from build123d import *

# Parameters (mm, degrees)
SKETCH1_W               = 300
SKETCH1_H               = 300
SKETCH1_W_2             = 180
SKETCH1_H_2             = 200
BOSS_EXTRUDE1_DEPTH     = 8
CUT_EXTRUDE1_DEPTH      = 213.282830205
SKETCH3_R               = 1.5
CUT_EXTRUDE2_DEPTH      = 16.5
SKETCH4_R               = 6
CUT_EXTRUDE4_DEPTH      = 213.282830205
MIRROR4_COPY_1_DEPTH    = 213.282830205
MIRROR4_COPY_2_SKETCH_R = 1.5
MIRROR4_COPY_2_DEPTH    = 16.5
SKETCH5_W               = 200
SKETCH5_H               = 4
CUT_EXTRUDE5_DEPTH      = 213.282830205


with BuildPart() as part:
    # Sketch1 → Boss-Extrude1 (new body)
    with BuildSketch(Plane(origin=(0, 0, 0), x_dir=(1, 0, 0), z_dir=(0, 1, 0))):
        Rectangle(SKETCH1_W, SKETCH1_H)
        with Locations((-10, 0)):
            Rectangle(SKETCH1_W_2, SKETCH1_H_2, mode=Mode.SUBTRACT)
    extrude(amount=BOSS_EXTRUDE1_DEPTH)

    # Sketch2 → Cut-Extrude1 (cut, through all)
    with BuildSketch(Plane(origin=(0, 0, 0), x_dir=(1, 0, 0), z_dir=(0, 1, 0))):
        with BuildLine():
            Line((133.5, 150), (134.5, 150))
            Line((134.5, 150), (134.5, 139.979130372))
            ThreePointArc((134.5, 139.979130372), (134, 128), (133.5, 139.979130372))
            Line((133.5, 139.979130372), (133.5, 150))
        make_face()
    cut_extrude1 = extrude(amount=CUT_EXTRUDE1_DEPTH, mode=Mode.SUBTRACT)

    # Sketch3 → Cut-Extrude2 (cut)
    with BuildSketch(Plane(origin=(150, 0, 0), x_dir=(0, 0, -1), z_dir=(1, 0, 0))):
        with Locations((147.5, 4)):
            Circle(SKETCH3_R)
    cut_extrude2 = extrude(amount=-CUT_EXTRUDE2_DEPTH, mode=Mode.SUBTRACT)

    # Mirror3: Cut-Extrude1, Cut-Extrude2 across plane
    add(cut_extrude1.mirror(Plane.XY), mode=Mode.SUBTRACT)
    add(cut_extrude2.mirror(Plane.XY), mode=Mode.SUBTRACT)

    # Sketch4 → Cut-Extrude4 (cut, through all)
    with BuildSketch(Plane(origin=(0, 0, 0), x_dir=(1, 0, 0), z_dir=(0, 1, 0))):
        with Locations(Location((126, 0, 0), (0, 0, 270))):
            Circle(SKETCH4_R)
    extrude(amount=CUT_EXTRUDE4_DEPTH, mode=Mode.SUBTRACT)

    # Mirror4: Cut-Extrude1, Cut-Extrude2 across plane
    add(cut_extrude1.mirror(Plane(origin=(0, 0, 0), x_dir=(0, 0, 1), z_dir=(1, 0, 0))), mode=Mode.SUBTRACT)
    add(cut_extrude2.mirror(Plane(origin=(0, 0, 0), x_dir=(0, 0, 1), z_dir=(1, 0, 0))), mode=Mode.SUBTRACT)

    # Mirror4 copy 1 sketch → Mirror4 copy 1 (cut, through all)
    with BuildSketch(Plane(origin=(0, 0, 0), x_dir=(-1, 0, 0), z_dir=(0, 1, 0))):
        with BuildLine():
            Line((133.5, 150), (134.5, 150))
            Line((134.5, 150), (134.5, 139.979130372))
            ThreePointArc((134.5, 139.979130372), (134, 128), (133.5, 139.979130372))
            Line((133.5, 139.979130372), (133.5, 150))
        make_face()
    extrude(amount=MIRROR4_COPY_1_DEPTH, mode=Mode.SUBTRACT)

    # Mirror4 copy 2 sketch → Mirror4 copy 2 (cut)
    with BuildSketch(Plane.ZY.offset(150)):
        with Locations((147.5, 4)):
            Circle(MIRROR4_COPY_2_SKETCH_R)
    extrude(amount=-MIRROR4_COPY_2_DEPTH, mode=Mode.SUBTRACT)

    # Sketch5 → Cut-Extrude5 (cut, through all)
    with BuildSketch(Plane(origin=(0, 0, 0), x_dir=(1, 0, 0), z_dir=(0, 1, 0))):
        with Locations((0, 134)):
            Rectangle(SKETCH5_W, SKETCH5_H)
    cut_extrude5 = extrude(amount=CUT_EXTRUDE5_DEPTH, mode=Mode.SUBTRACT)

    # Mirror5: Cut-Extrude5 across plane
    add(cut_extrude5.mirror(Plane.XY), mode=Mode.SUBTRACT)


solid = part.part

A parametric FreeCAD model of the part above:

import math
import FreeCAD as App
import Part
import Sketcher
from FreeCAD import Vector


def add_polygon(sketch, points):
    """Adds a closed chain of lines whose ends are joined by coincident constraints."""
    first, n = sketch.GeometryCount, len(points)
    for a, b in zip(points, points[1:] + points[:1]):
        sketch.addGeometry(Part.LineSegment(App.Vector(*a, 0), App.Vector(*b, 0)), False)
    for i in range(n):
        sketch.addConstraint(Sketcher.Constraint("Coincident", first + i, 2, first + (i + 1) % n, 1))

doc = App.newDocument("Part")
params = doc.addObject("Spreadsheet::Sheet", "Params")
for row, (alias, value) in enumerate([
    ("sketch1_width", "300 mm"),
    ("sketch1_width2", "180 mm"),
    ("sketch1_height", "200 mm"),
    ("pad1_length", "8 mm"),
    ("sketch2_radius", "6 mm"),
    ("sketch2_width", "1 mm"),
    ("sketch3_diameter", "3 mm"),
    ("pocket2_length", "16.5 mm"),
    ("sketch4_diameter", "12 mm"),
    ("sketch5_radius", "6 mm"),
    ("sketch5_width", "1 mm"),
    ("sketch6_diameter", "3 mm"),
    ("pocket5_length", "16.5 mm"),
    ("sketch7_width", "200 mm"),
    ("sketch7_height", "4 mm"),
], start=1):
    params.set(f"A{row}", alias)
    params.set(f"B{row}", "=" + value)
    params.setAlias(f"B{row}", alias)

body = doc.addObject("PartDesign::Body", "Body")

# Sketch on XZ plane
sketch1 = body.newObject("Sketcher::SketchObject", "Sketch")
sketch1.AttachmentSupport = (doc.getObject("XZ_Plane"), [""])
sketch1.MapMode = "FlatFace"
add_polygon(sketch1, [(-150, -150), (-150, 150), (150, 150), (150, -150)])  # lines 0-3
add_polygon(sketch1, [(80, 100), (-100, 100), (-100, -100), (80, -100)])  # lines 4-7
sketch1.addConstraint(Sketcher.Constraint("Vertical", 0))
sketch1.addConstraint(Sketcher.Constraint("Horizontal", 1))
sketch1.addConstraint(Sketcher.Constraint("Vertical", 2))
sketch1.addConstraint(Sketcher.Constraint("Horizontal", 3))
sketch1.addConstraint(Sketcher.Constraint("Horizontal", 4))
sketch1.addConstraint(Sketcher.Constraint("Vertical", 5))
sketch1.addConstraint(Sketcher.Constraint("Horizontal", 6))
sketch1.addConstraint(Sketcher.Constraint("Vertical", 7))
sketch1.addConstraint(Sketcher.Constraint("Symmetric", 0, 2, 2, 2, -1, 1))
sketch1.addConstraint(Sketcher.Constraint("Equal", 3, 0))
sketch1.addConstraint(Sketcher.Constraint("DistanceX", 1, 1, 1, 2, 300.0))
sketch1.addConstraint(Sketcher.Constraint("DistanceX", 4, 2, 4, 1, 180.0))
sketch1.addConstraint(Sketcher.Constraint("DistanceY", 5, 2, 5, 1, 200.0))
sketch1.addConstraint(Sketcher.Constraint("DistanceX", 4, 2, -1, 1, 100.0))
sketch1.addConstraint(Sketcher.Constraint("DistanceY", -1, 1, 4, 2, 100.0))
sketch1.setExpression("Constraints[18]", "Params.sketch1_width")
sketch1.setExpression("Constraints[19]", "Params.sketch1_width2")
sketch1.setExpression("Constraints[20]", "Params.sketch1_height")
pad1 = body.newObject("PartDesign::Pad", "Pad")
pad1.Profile = sketch1
pad1.setExpression("Length", "Params.pad1_length")
pad1.Reversed = True

# Sketch on XZ plane
sketch2 = body.newObject("Sketcher::SketchObject", "Sketch001")
sketch2.AttachmentSupport = (doc.getObject("XZ_Plane"), [""])
sketch2.MapMode = "FlatFace"
sketch2.addGeometry(Part.LineSegment(Vector(134.5, -150, 0), Vector(133.5, -150, 0)), False)
sketch2.addGeometry(Part.LineSegment(Vector(133.5, -150, 0), Vector(133.5, -140, 0)), False)
sketch2.addGeometry(Part.ArcOfCircle(Part.Circle(Vector(134, -134, 0), Vector(0, 0, 1), 6), math.radians(-85), math.radians(265)), False)
sketch2.addGeometry(Part.LineSegment(Vector(134.5, -140, 0), Vector(134.5, -150, 0)), False)
sketch2.addConstraint(Sketcher.Constraint("Coincident", 0, 2, 1, 1))
sketch2.addConstraint(Sketcher.Constraint("Coincident", 1, 2, 2, 2))
sketch2.addConstraint(Sketcher.Constraint("Coincident", 2, 1, 3, 1))
sketch2.addConstraint(Sketcher.Constraint("Coincident", 3, 2, 0, 1))
sketch2.addConstraint(Sketcher.Constraint("Horizontal", 0))
sketch2.addConstraint(Sketcher.Constraint("Vertical", 1))
sketch2.addConstraint(Sketcher.Constraint("Vertical", 3))
sketch2.addConstraint(Sketcher.Constraint("Horizontal", 1, 2, 2, 1))
sketch2.addConstraint(Sketcher.Constraint("Radius", 2, 6.0))
sketch2.addConstraint(Sketcher.Constraint("DistanceX", 0, 2, 0, 1, 1.0))
sketch2.addConstraint(Sketcher.Constraint("DistanceX", -1, 1, 2, 3, 134.0))
sketch2.addConstraint(Sketcher.Constraint("DistanceY", 2, 3, -1, 1, 134.0))
sketch2.addConstraint(Sketcher.Constraint("DistanceY", 0, 2, -1, 1, 150.0))
sketch2.setExpression("Constraints[8]", "Params.sketch2_radius")
sketch2.setExpression("Constraints[9]", "Params.sketch2_width")
pocket1 = body.newObject("PartDesign::Pocket", "Pocket")
pocket1.Profile = sketch2
pocket1.Type = "ThroughAll"

# Sketch on YZ plane
sketch3 = body.newObject("Sketcher::SketchObject", "Sketch002")
sketch3.AttachmentSupport = (doc.getObject("YZ_Plane"), [""])
sketch3.MapMode = "FlatFace"
sketch3.AttachmentOffset = App.Placement(Vector(0, 0, 150), App.Rotation())
sketch3.addGeometry(Part.Circle(Vector(4, -147.5, 0), Vector(0, 0, 1), 1.5), False)
sketch3.addConstraint(Sketcher.Constraint("Diameter", 0, 3.0))
sketch3.addConstraint(Sketcher.Constraint("DistanceX", -1, 1, 0, 3, 4.0))
sketch3.addConstraint(Sketcher.Constraint("DistanceY", 0, 3, -1, 1, 147.5))
sketch3.setExpression("Constraints[0]", "Params.sketch3_diameter")
pocket2 = body.newObject("PartDesign::Pocket", "Pocket001")
pocket2.Profile = sketch3
pocket2.setExpression("Length", "Params.pocket2_length")
doc.recompute()

mirrored = body.newObject("PartDesign::Mirrored", "Mirrored")
mirrored.Originals = [pocket1, pocket2]
mirrored.MirrorPlane = (doc.getObject("XY_Plane"), [""])
body.Tip = mirrored

# Sketch on XZ plane
sketch4 = body.newObject("Sketcher::SketchObject", "Sketch003")
sketch4.AttachmentSupport = (doc.getObject("XZ_Plane"), [""])
sketch4.MapMode = "FlatFace"
sketch4.addGeometry(Part.Circle(Vector(126, 0, 0), Vector(0, 0, 1), 6), False)
sketch4.addConstraint(Sketcher.Constraint("PointOnObject", 0, 3, -1))
sketch4.addConstraint(Sketcher.Constraint("Diameter", 0, 12.0))
sketch4.addConstraint(Sketcher.Constraint("DistanceX", -1, 1, 0, 3, 126.0))
sketch4.setExpression("Constraints[1]", "Params.sketch4_diameter")
pocket3 = body.newObject("PartDesign::Pocket", "Pocket002")
pocket3.Profile = sketch4
pocket3.Type = "ThroughAll"
doc.recompute()

mirrored2 = body.newObject("PartDesign::Mirrored", "Mirrored001")
mirrored2.Originals = [pocket1, pocket2]
mirrored2.MirrorPlane = (doc.getObject("YZ_Plane"), [""])
body.Tip = mirrored2

# Sketch on XZ plane
sketch5 = body.newObject("Sketcher::SketchObject", "Sketch004")
sketch5.AttachmentSupport = (doc.getObject("XZ_Plane"), [""])
sketch5.MapMode = "FlatFace"
sketch5.addGeometry(Part.LineSegment(Vector(-134.5, 150, 0), Vector(-133.5, 150, 0)), False)
sketch5.addGeometry(Part.LineSegment(Vector(-133.5, 150, 0), Vector(-133.5, 140, 0)), False)
sketch5.addGeometry(Part.ArcOfCircle(Part.Circle(Vector(-134, 134, 0), Vector(0, 0, 1), 6), math.radians(95), math.radians(445)), False)
sketch5.addGeometry(Part.LineSegment(Vector(-134.5, 140, 0), Vector(-134.5, 150, 0)), False)
sketch5.addConstraint(Sketcher.Constraint("Coincident", 0, 2, 1, 1))
sketch5.addConstraint(Sketcher.Constraint("Coincident", 1, 2, 2, 2))
sketch5.addConstraint(Sketcher.Constraint("Coincident", 2, 1, 3, 1))
sketch5.addConstraint(Sketcher.Constraint("Coincident", 3, 2, 0, 1))
sketch5.addConstraint(Sketcher.Constraint("Horizontal", 0))
sketch5.addConstraint(Sketcher.Constraint("Vertical", 1))
sketch5.addConstraint(Sketcher.Constraint("Vertical", 3))
sketch5.addConstraint(Sketcher.Constraint("Horizontal", 1, 2, 2, 1))
sketch5.addConstraint(Sketcher.Constraint("Radius", 2, 6.0))
sketch5.addConstraint(Sketcher.Constraint("DistanceX", 0, 1, 0, 2, 1.0))
sketch5.addConstraint(Sketcher.Constraint("DistanceX", 2, 3, -1, 1, 134.0))
sketch5.addConstraint(Sketcher.Constraint("DistanceY", -1, 1, 2, 3, 134.0))
sketch5.addConstraint(Sketcher.Constraint("DistanceY", -1, 1, 0, 2, 150.0))
sketch5.setExpression("Constraints[8]", "Params.sketch5_radius")
sketch5.setExpression("Constraints[9]", "Params.sketch5_width")
pocket4 = body.newObject("PartDesign::Pocket", "Pocket003")
pocket4.Profile = sketch5
pocket4.Type = "ThroughAll"

# Sketch on YZ plane
sketch6 = body.newObject("Sketcher::SketchObject", "Sketch005")
sketch6.AttachmentSupport = (doc.getObject("YZ_Plane"), [""])
sketch6.MapMode = "FlatFace"
sketch6.AttachmentOffset = App.Placement(Vector(0, 0, -150), App.Rotation())
sketch6.addGeometry(Part.Circle(Vector(4, 147.5, 0), Vector(0, 0, 1), 1.5), False)
sketch6.addConstraint(Sketcher.Constraint("Diameter", 0, 3.0))
sketch6.addConstraint(Sketcher.Constraint("DistanceX", -1, 1, 0, 3, 4.0))
sketch6.addConstraint(Sketcher.Constraint("DistanceY", -1, 1, 0, 3, 147.5))
sketch6.setExpression("Constraints[0]", "Params.sketch6_diameter")
pocket5 = body.newObject("PartDesign::Pocket", "Pocket004")
pocket5.Profile = sketch6
pocket5.setExpression("Length", "Params.pocket5_length")
pocket5.Reversed = True

# Sketch on XZ plane
sketch7 = body.newObject("Sketcher::SketchObject", "Sketch006")
sketch7.AttachmentSupport = (doc.getObject("XZ_Plane"), [""])
sketch7.MapMode = "FlatFace"
add_polygon(sketch7, [(-100, -136), (-100, -132), (100, -132), (100, -136)])  # lines 0-3
sketch7.addConstraint(Sketcher.Constraint("Vertical", 0))
sketch7.addConstraint(Sketcher.Constraint("Horizontal", 1))
sketch7.addConstraint(Sketcher.Constraint("Vertical", 2))
sketch7.addConstraint(Sketcher.Constraint("Horizontal", 3))
sketch7.addConstraint(Sketcher.Constraint("DistanceX", 1, 1, 1, 2, 200.0))
sketch7.addConstraint(Sketcher.Constraint("DistanceY", 0, 1, 0, 2, 4.0))
sketch7.addConstraint(Sketcher.Constraint("DistanceX", 0, 2, -1, 1, 100.0))
sketch7.addConstraint(Sketcher.Constraint("DistanceY", 0, 2, -1, 1, 132.0))
sketch7.setExpression("Constraints[8]", "Params.sketch7_width")
sketch7.setExpression("Constraints[9]", "Params.sketch7_height")
pocket6 = body.newObject("PartDesign::Pocket", "Pocket005")
pocket6.Profile = sketch7
pocket6.Type = "ThroughAll"
doc.recompute()

mirrored3 = body.newObject("PartDesign::Mirrored", "Mirrored002")
mirrored3.Originals = [pocket6]
mirrored3.MirrorPlane = (doc.getObject("XY_Plane"), [""])
body.Tip = mirrored3

doc.recompute()
